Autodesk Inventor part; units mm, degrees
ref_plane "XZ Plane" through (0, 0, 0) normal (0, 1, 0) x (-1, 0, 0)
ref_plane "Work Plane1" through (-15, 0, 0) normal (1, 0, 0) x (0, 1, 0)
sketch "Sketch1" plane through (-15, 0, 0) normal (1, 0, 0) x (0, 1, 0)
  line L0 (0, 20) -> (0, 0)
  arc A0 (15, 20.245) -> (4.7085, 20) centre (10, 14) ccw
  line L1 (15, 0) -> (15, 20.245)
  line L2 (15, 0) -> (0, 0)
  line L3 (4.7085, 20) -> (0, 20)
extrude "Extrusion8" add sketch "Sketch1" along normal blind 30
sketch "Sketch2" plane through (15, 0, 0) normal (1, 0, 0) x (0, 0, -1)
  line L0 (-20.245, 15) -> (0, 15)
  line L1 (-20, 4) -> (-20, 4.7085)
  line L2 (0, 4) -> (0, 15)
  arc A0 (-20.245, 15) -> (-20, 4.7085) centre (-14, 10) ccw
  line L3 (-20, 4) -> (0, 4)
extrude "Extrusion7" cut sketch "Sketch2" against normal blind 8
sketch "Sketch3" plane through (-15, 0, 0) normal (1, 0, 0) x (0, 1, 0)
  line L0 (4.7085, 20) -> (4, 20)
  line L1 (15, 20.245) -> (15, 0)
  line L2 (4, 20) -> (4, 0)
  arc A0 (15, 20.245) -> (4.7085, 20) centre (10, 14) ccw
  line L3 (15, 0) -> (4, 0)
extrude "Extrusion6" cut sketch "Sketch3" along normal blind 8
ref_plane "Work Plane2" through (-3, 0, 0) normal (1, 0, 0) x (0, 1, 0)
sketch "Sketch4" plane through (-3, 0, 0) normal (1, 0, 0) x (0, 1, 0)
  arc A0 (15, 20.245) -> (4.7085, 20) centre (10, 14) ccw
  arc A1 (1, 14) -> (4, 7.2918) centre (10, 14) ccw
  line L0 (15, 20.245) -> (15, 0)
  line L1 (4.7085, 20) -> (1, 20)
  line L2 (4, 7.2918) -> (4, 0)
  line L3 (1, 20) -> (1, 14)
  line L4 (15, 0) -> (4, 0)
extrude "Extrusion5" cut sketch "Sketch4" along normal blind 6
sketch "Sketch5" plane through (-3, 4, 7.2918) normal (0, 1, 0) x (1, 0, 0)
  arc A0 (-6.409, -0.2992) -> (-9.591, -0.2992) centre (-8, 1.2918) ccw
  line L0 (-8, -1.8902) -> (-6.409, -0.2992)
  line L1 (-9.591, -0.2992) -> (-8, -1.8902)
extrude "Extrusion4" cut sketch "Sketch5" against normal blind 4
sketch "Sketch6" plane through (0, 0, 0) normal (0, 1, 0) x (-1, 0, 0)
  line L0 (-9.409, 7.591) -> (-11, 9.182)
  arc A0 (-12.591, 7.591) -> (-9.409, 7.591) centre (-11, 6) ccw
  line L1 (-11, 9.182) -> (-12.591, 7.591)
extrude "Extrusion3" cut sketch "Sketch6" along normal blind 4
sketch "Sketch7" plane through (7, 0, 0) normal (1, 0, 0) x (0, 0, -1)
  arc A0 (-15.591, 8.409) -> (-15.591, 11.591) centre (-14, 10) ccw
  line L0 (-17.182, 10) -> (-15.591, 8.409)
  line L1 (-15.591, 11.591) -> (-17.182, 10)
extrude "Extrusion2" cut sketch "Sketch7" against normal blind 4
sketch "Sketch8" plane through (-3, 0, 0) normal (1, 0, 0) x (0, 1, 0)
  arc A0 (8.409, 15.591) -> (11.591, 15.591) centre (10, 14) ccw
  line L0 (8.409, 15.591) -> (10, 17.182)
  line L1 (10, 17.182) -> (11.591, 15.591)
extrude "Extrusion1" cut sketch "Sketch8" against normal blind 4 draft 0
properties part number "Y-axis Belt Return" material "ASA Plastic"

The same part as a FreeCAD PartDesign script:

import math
import FreeCAD as App
import Part
import Sketcher

V = App.Vector
Q = App.Units.Quantity

doc = App.newDocument("Part")
body = doc.addObject("PartDesign::Body", "Body")

sketch1 = body.newObject("Sketcher::SketchObject", "Sketch")
sketch1.AttachmentSupport = (doc.getObject("YZ_Plane"), [""])
sketch1.MapMode = "FlatFace"
sketch1.AttachmentOffset = App.Placement(V(0, 0, -15), App.Rotation())
sketch1.addGeometry(Part.LineSegment(V(4.7, 20, 0), V(0, 20, 0)), False)
sketch1.addGeometry(Part.LineSegment(V(0, 20, 0), V(0, 0, 0)), False)
sketch1.addGeometry(Part.LineSegment(V(0, 0, 0), V(15, 0, 0)), False)
sketch1.addGeometry(Part.LineSegment(V(15, 0, 0), V(15, 20.2, 0)), False)
sketch1.addGeometry(Part.ArcOfCircle(Part.Circle(V(10, 14, 0), V(0, 0, 1), 8), math.radians(51), math.radians(131)), False)
sketch1.addConstraint(Sketcher.Constraint("Coincident", 0, 2, 1, 1))
sketch1.addConstraint(Sketcher.Constraint("Coincident", 1, 2, 2, 1))
sketch1.addConstraint(Sketcher.Constraint("Coincident", 2, 2, 3, 1))
sketch1.addConstraint(Sketcher.Constraint("Coincident", 3, 2, 4, 1))
sketch1.addConstraint(Sketcher.Constraint("Coincident", 4, 2, 0, 1))
sketch1.addConstraint(Sketcher.Constraint("Horizontal", 0))
sketch1.addConstraint(Sketcher.Constraint("Vertical", 1))
sketch1.addConstraint(Sketcher.Constraint("Horizontal", 2))
sketch1.addConstraint(Sketcher.Constraint("Vertical", 3))
sketch1.addConstraint(Sketcher.Constraint("Coincident", 1, 2, -1, 1))
sketch1.addConstraint(Sketcher.Constraint("Radius", 4, Q("8 mm")))
sketch1.addConstraint(Sketcher.Constraint("DistanceX", 2, 1, 2, 2, Q("15 mm")))
sketch1.addConstraint(Sketcher.Constraint("DistanceY", 1, 2, 1, 1, Q("20 mm")))
sketch1.addConstraint(Sketcher.Constraint("DistanceX", -1, 1, 4, 3, Q("10 mm")))
sketch1.addConstraint(Sketcher.Constraint("DistanceY", -1, 1, 4, 3, Q("14 mm")))
pad1 = body.newObject("PartDesign::Pad", "Pad")
pad1.Profile = sketch1
pad1.Length = 30

sketch2 = body.newObject("Sketcher::SketchObject", "Sketch001")
sketch2.AttachmentSupport = (doc.getObject("YZ_Plane"), [""])
sketch2.MapMode = "FlatFace"
sketch2.AttachmentOffset = App.Placement(V(0, 0, 15), App.Rotation())
sketch2.addGeometry(Part.LineSegment(V(15, 0, 0), V(15, 20.2, 0)), False)
sketch2.addGeometry(Part.ArcOfCircle(Part.Circle(V(10, 14, 0), V(0, 0, 1), 8), math.radians(51), math.radians(131)), False)
sketch2.addGeometry(Part.LineSegment(V(4.7, 20, 0), V(4, 20, 0)), False)
sketch2.addGeometry(Part.LineSegment(V(4, 20, 0), V(4, 0, 0)), False)
sketch2.addGeometry(Part.LineSegment(V(4, 0, 0), V(15, 0, 0)), False)
sketch2.addConstraint(Sketcher.Constraint("Coincident", 0, 2, 1, 1))
sketch2.addConstraint(Sketcher.Constraint("Coincident", 1, 2, 2, 1))
sketch2.addConstraint(Sketcher.Constraint("Coincident", 2, 2, 3, 1))
sketch2.addConstraint(Sketcher.Constraint("Coincident", 3, 2, 4, 1))
sketch2.addConstraint(Sketcher.Constraint("Coincident", 4, 2, 0, 1))
sketch2.addConstraint(Sketcher.Constraint("Vertical", 0))
sketch2.addConstraint(Sketcher.Constraint("Horizontal", 2))
sketch2.addConstraint(Sketcher.Constraint("Vertical", 3))
sketch2.addConstraint(Sketcher.Constraint("Horizontal", 4))
sketch2.addConstraint(Sketcher.Constraint("PointOnObject", 3, 2, -1))
sketch2.addConstraint(Sketcher.Constraint("Radius", 1, Q("8 mm")))
sketch2.addConstraint(Sketcher.Constraint("DistanceX", 4, 1, 4, 2, Q("11 mm")))
sketch2.addConstraint(Sketcher.Constraint("DistanceY", 3, 2, 3, 1, Q("20 mm")))
sketch2.addConstraint(Sketcher.Constraint("DistanceX", -1, 1, 1, 3, Q("10 mm")))
sketch2.addConstraint(Sketcher.Constraint("DistanceY", -1, 1, 1, 3, Q("14 mm")))
sketch2.addConstraint(Sketcher.Constraint("DistanceX", -1, 1, 0, 2, Q("15 mm")))
pocket1 = body.newObject("PartDesign::Pocket", "Pocket")
pocket1.Profile = sketch2
pocket1.Length = 8

sketch3 = body.newObject("Sketcher::SketchObject", "Sketch002")
sketch3.AttachmentSupport = (doc.getObject("YZ_Plane"), [""])
sketch3.MapMode = "FlatFace"
sketch3.AttachmentOffset = App.Placement(V(0, 0, -15), App.Rotation())
sketch3.addGeometry(Part.ArcOfCircle(Part.Circle(V(10, 14, 0), V(0, 0, 1), 8), math.radians(51), math.radians(131)), False)
sketch3.addGeometry(Part.LineSegment(V(4.7, 20, 0), V(4, 20, 0)), False)
sketch3.addGeometry(Part.LineSegment(V(4, 20, 0), V(4, 0, 0)), False)
sketch3.addGeometry(Part.LineSegment(V(4, 0, 0), V(15, 0, 0)), False)
sketch3.addGeometry(Part.LineSegment(V(15, 0, 0), V(15, 20.2, 0)), False)
sketch3.addConstraint(Sketcher.Constraint("Coincident", 0, 2, 1, 1))
sketch3.addConstraint(Sketcher.Constraint("Coincident", 1, 2, 2, 1))
sketch3.addConstraint(Sketcher.Constraint("Coincident", 2, 2, 3, 1))
sketch3.addConstraint(Sketcher.Constraint("Coincident", 3, 2, 4, 1))
sketch3.addConstraint(Sketcher.Constraint("Coincident", 4, 2, 0, 1))
sketch3.addConstraint(Sketcher.Constraint("Horizontal", 1))
sketch3.addConstraint(Sketcher.Constraint("Vertical", 2))
sketch3.addConstraint(Sketcher.Constraint("Horizontal", 3))
sketch3.addConstraint(Sketcher.Constraint("Vertical", 4))
sketch3.addConstraint(Sketcher.Constraint("PointOnObject", 2, 2, -1))
sketch3.addConstraint(Sketcher.Constraint("Radius", 0, Q("8 mm")))
sketch3.addConstraint(Sketcher.Constraint("DistanceX", 3, 1, 3, 2, Q("11 mm")))
sketch3.addConstraint(Sketcher.Constraint("DistanceY", 2, 2, 2, 1, Q("20 mm")))
sketch3.addConstraint(Sketcher.Constraint("DistanceX", -1, 1, 0, 3, Q("10 mm")))
sketch3.addConstraint(Sketcher.Constraint("DistanceY", -1, 1, 0, 3, Q("14 mm")))
sketch3.addConstraint(Sketcher.Constraint("DistanceX", -1, 1, 1, 2, Q("4 mm")))
pocket2 = body.newObject("PartDesign::Pocket", "Pocket001")
pocket2.Profile = sketch3
pocket2.Length = 8
pocket2.Reversed = True

sketch4 = body.newObject("Sketcher::SketchObject", "Sketch003")
sketch4.AttachmentSupport = (doc.getObject("YZ_Plane"), [""])
sketch4.MapMode = "FlatFace"
sketch4.AttachmentOffset = App.Placement(V(0, 0, -3), App.Rotation())
sketch4.addGeometry(Part.LineSegment(V(15, 0, 0), V(15, 20.2, 0)), False)
sketch4.addGeometry(Part.ArcOfCircle(Part.Circle(V(10, 14, 0), V(0, 0, 1), 8), math.radians(51), math.radians(131)), False)
sketch4.addGeometry(Part.LineSegment(V(4.7, 20, 0), V(1, 20, 0)), False)
sketch4.addGeometry(Part.LineSegment(V(1, 20, 0), V(1, 14, 0)), False)
sketch4.addGeometry(Part.ArcOfCircle(Part.Circle(V(10, 14, 0), V(0, 0, 1), 9), math.radians(180), math.radians(228)), False)
sketch4.addGeometry(Part.LineSegment(V(4, 7.3, 0), V(4, 0, 0)), False)
sketch4.addGeometry(Part.LineSegment(V(4, 0, 0), V(15, 0, 0)), False)
sketch4.addConstraint(Sketcher.Constraint("Coincident", 0, 2, 1, 1))
sketch4.addConstraint(Sketcher.Constraint("Coincident", 1, 2, 2, 1))
sketch4.addConstraint(Sketcher.Constraint("Coincident", 2, 2, 3, 1))
sketch4.addConstraint(Sketcher.Constraint("Tangent", 3, 2, 4, 1))
sketch4.addConstraint(Sketcher.Constraint("Coincident", 4, 2, 5, 1))
sketch4.addConstraint(Sketcher.Constraint("Coincident", 5, 2, 6, 1))
sketch4.addConstraint(Sketcher.Constraint("Coincident", 6, 2, 0, 1))
sketch4.addConstraint(Sketcher.Constraint("Vertical", 0))
sketch4.addConstraint(Sketcher.Constraint("Horizontal", 2))
sketch4.addConstraint(Sketcher.Constraint("Vertical", 3))
sketch4.addConstraint(Sketcher.Constraint("Vertical", 5))
sketch4.addConstraint(Sketcher.Constraint("Horizontal", 6))
sketch4.addConstraint(Sketcher.Constraint("Coincident", 4, 3, 1, 3))
sketch4.addConstraint(Sketcher.Constraint("PointOnObject", 5, 2, -1))
sketch4.addConstraint(Sketcher.Constraint("Radius", 1, Q("8 mm")))
sketch4.addConstraint(Sketcher.Constraint("Radius", 4, Q("9 mm")))
sketch4.addConstraint(Sketcher.Constraint("DistanceX", 6, 1, 6, 2, Q("11 mm")))
sketch4.addConstraint(Sketcher.Constraint("DistanceY", 3, 2, 3, 1, Q("6 mm")))
sketch4.addConstraint(Sketcher.Constraint("DistanceX", -1, 1, 1, 3, Q("10 mm")))
sketch4.addConstraint(Sketcher.Constraint("DistanceY", -1, 1, 1, 3, Q("14 mm")))
sketch4.addConstraint(Sketcher.Constraint("DistanceX", -1, 1, 0, 2, Q("15 mm")))
pocket3 = body.newObject("PartDesign::Pocket", "Pocket002")
pocket3.Profile = sketch4
pocket3.Length = 6
pocket3.Reversed = True

sketch5 = body.newObject("Sketcher::SketchObject", "Sketch004")
sketch5.AttachmentSupport = (doc.getObject("XZ_Plane"), [""])
sketch5.MapMode = "FlatFace"
sketch5.AttachmentOffset = App.Placement(V(0, 0, -4), App.Rotation())
sketch5.addGeometry(Part.LineSegment(V(-11, 9.2, 0), V(-9.4, 7.6, 0)), False)
sketch5.addGeometry(Part.ArcOfCircle(Part.Circle(V(-11, 6, 0), V(0, 0, 1), 2.3), math.radians(135), math.radians(405)), False)
sketch5.addGeometry(Part.LineSegment(V(-12.6, 7.6, 0), V(-11, 9.2, 0)), False)
sketch5.addConstraint(Sketcher.Constraint("Tangent", 0, 2, 1, 2))
sketch5.addConstraint(Sketcher.Constraint("Tangent", 1, 1, 2, 1))
sketch5.addConstraint(Sketcher.Constraint("Coincident", 2, 2, 0, 1))
sketch5.addConstraint(Sketcher.Constraint("Perpendicular", 0, 2))
sketch5.addConstraint(Sketcher.Constraint("Horizontal", 0, 2, 1, 1))
sketch5.addConstraint(Sketcher.Constraint("Radius", 1, Q("2.25 mm")))
sketch5.addConstraint(Sketcher.Constraint("DistanceX", 1, 3, -1, 1, Q("11 mm")))
sketch5.addConstraint(Sketcher.Constraint("DistanceY", -1, 1, 1, 3, Q("6 mm")))
pocket4 = body.newObject("PartDesign::Pocket", "Pocket003")
pocket4.Profile = sketch5
pocket4.Length = 4
pocket4.Reversed = True

sketch6 = body.newObject("Sketcher::SketchObject", "Sketch005")
sketch6.AttachmentSupport = (doc.getObject("XZ_Plane"), [""])
sketch6.MapMode = "FlatFace"
sketch6.addGeometry(Part.ArcOfCircle(Part.Circle(V(11, 6, 0), V(0, 0, 1), 2.3), math.radians(135), math.radians(405)), False)
sketch6.addGeometry(Part.LineSegment(V(9.4, 7.6, 0), V(11, 9.2, 0)), False)
sketch6.addGeometry(Part.LineSegment(V(11, 9.2, 0), V(12.6, 7.6, 0)), False)
sketch6.addConstraint(Sketcher.Constraint("Tangent", 0, 1, 1, 1))
sketch6.addConstraint(Sketcher.Constraint("Coincident", 1, 2, 2, 1))
sketch6.addConstraint(Sketcher.Constraint("Tangent", 2, 2, 0, 2))
sketch6.addConstraint(Sketcher.Constraint("Perpendicular", 1, 2))
sketch6.addConstraint(Sketcher.Constraint("Horizontal", 0, 1, 2, 2))
sketch6.addConstraint(Sketcher.Constraint("Radius", 0, Q("2.25 mm")))
sketch6.addConstraint(Sketcher.Constraint("DistanceX", -1, 1, 0, 3, Q("11 mm")))
sketch6.addConstraint(Sketcher.Constraint("DistanceY", -1, 1, 0, 3, Q("6 mm")))
pocket5 = body.newObject("PartDesign::Pocket", "Pocket004")
pocket5.Profile = sketch6
pocket5.Length = 4

sketch7 = body.newObject("Sketcher::SketchObject", "Sketch006")
sketch7.AttachmentSupport = (doc.getObject("YZ_Plane"), [""])
sketch7.MapMode = "FlatFace"
sketch7.AttachmentOffset = App.Placement(V(0, 0, 7), App.Rotation())
sketch7.addGeometry(Part.LineSegment(V(10, 17.2, 0), V(8.4, 15.6, 0)), False)
sketch7.addGeometry(Part.ArcOfCircle(Part.Circle(V(10, 14, 0), V(0, 0, 1), 2.3), math.radians(135), math.radians(405)), False)
sketch7.addGeometry(Part.LineSegment(V(11.6, 15.6, 0), V(10, 17.2, 0)), False)
sketch7.addConstraint(Sketcher.Constraint("Tangent", 0, 2, 1, 1))
sketch7.addConstraint(Sketcher.Constraint("Tangent", 1, 2, 2, 1))
sketch7.addConstraint(Sketcher.Constraint("Coincident", 2, 2, 0, 1))
sketch7.addConstraint(Sketcher.Constraint("Perpendicular", 0, 2))
sketch7.addConstraint(Sketcher.Constraint("Horizontal", 0, 2, 1, 2))
sketch7.addConstraint(Sketcher.Constraint("Radius", 1, Q("2.25 mm")))
sketch7.addConstraint(Sketcher.Constraint("DistanceX", -1, 1, 1, 3, Q("10 mm")))
sketch7.addConstraint(Sketcher.Constraint("DistanceY", -1, 1, 1, 3, Q("14 mm")))
pocket6 = body.newObject("PartDesign::Pocket", "Pocket005")
pocket6.Profile = sketch7
pocket6.Length = 4

sketch8 = body.newObject("Sketcher::SketchObject", "Sketch007")
sketch8.AttachmentSupport = (doc.getObject("YZ_Plane"), [""])
sketch8.MapMode = "FlatFace"
sketch8.AttachmentOffset = App.Placement(V(0, 0, -3), App.Rotation())
sketch8.addGeometry(Part.LineSegment(V(10, 17.2, 0), V(8.4, 15.6, 0)), False)
sketch8.addGeometry(Part.ArcOfCircle(Part.Circle(V(10, 14, 0), V(0, 0, 1), 2.3), math.radians(135), math.radians(405)), False)
sketch8.addGeometry(Part.LineSegment(V(11.6, 15.6, 0), V(10, 17.2, 0)), False)
sketch8.addConstraint(Sketcher.Constraint("Tangent", 0, 2, 1, 1))
sketch8.addConstraint(Sketcher.Constraint("Tangent", 1, 2, 2, 1))
sketch8.addConstraint(Sketcher.Constraint("Coincident", 2, 2, 0, 1))
sketch8.addConstraint(Sketcher.Constraint("Perpendicular", 0, 2))
sketch8.addConstraint(Sketcher.Constraint("Horizontal", 0, 2, 1, 2))
sketch8.addConstraint(Sketcher.Constraint("Radius", 1, Q("2.25 mm")))
sketch8.addConstraint(Sketcher.Constraint("DistanceX", -1, 1, 1, 3, Q("10 mm")))
sketch8.addConstraint(Sketcher.Constraint("DistanceY", -1, 1, 1, 3, Q("14 mm")))
pocket7 = body.newObject("PartDesign::Pocket", "Pocket006")
pocket7.Profile = sketch8
pocket7.Length = 4

doc.recompute()
